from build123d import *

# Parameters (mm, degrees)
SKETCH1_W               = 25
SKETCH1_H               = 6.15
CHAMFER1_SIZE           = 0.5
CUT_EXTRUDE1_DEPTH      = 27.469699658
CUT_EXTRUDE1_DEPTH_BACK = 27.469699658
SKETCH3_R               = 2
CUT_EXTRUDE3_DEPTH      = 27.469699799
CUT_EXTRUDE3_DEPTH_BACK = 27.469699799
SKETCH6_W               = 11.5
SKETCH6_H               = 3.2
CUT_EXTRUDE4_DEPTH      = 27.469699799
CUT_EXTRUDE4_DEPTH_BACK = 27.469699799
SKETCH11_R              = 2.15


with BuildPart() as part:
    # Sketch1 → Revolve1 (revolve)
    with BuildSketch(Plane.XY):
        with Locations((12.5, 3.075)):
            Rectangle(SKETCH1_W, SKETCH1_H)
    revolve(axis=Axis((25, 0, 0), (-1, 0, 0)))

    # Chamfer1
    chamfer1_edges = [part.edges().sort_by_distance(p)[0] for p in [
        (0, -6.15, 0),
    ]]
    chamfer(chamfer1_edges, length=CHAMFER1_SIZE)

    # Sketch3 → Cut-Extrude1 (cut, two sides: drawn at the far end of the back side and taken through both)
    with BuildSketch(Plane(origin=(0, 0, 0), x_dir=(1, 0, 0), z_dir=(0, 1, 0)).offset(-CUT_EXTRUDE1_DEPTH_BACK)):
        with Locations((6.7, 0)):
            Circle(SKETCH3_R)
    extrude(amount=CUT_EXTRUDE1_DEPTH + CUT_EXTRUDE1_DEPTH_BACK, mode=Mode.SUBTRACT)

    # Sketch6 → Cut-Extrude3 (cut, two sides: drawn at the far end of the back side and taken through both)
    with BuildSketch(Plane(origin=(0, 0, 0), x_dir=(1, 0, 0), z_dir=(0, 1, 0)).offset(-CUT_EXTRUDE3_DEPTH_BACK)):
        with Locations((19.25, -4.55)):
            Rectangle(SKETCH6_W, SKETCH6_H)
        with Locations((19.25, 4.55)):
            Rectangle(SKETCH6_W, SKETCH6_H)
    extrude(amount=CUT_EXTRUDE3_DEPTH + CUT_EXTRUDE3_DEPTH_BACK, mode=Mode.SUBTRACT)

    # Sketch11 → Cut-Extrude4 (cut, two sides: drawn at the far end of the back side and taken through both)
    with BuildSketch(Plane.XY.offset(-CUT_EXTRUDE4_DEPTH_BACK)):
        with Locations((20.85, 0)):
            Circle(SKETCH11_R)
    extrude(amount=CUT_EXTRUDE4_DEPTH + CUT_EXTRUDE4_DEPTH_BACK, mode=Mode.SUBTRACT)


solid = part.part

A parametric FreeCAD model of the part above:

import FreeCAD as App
import Part
import Sketcher
from FreeCAD import Vector
Q = App.Units.Quantity


def edges_at(feature, points):
    """Names of the edges that pass closest to the given points."""
    edges = feature.Shape.Edges
    near = lambda p: min(range(len(edges)), key=lambda i: edges[i].distToShape(Part.Vertex(*p))[0])
    return sorted({f"Edge{near(p) + 1}" for p in points})


def add_polygon(sketch, points):
    """Adds a closed chain of lines whose ends are joined by coincident constraints."""
    first, n = sketch.GeometryCount, len(points)
    for a, b in zip(points, points[1:] + points[:1]):
        sketch.addGeometry(Part.LineSegment(App.Vector(*a, 0), App.Vector(*b, 0)), False)
    for i in range(n):
        sketch.addConstraint(Sketcher.Constraint("Coincident", first + i, 2, first + (i + 1) % n, 1))

doc = App.newDocument("Part")
body = doc.addObject("PartDesign::Body", "Body")

# Sketch on XY plane
sketch1 = body.newObject("Sketcher::SketchObject", "Sketch")
sketch1.AttachmentSupport = (doc.getObject("XY_Plane"), [""])
sketch1.MapMode = "FlatFace"
add_polygon(sketch1, [(0, 6.15), (0, 0), (25, 0), (25, 6.15)])  # lines 0-3
sketch1.addConstraint(Sketcher.Constraint("Vertical", 0))
sketch1.addConstraint(Sketcher.Constraint("Horizontal", 1))
sketch1.addConstraint(Sketcher.Constraint("Vertical", 2))
sketch1.addConstraint(Sketcher.Constraint("Horizontal", 3))
sketch1.addConstraint(Sketcher.Constraint("Coincident", 0, 2, -1, 1))
sketch1.addConstraint(Sketcher.Constraint("DistanceX", 1, 1, 1, 2, Q("25 mm")))
sketch1.addConstraint(Sketcher.Constraint("DistanceY", 0, 2, 0, 1, Q("6.15 mm")))
revolution = body.newObject("PartDesign::Revolution", "Revolution")
revolution.Profile = sketch1
revolution.ReferenceAxis = (sketch1, ["H_Axis"])
revolution.Angle = 360
doc.recompute()

chamfer = body.newObject("PartDesign::Chamfer", "Chamfer")
chamfer.Base = (revolution, edges_at(revolution, [(0, -6.15, 0)]))
chamfer.Size = 0.5

# Sketch on XZ plane
sketch2 = body.newObject("Sketcher::SketchObject", "Sketch001")
sketch2.AttachmentSupport = (doc.getObject("XZ_Plane"), [""])
sketch2.MapMode = "FlatFace"
sketch2.addGeometry(Part.Circle(Vector(6.7, 0, 0), Vector(0, 0, 1), 2), False)
sketch2.addConstraint(Sketcher.Constraint("PointOnObject", 0, 3, -1))
sketch2.addConstraint(Sketcher.Constraint("Diameter", 0, Q("4 mm")))
sketch2.addConstraint(Sketcher.Constraint("DistanceX", -1, 1, 0, 3, Q("6.7 mm")))
pocket1 = body.newObject("PartDesign::Pocket", "Pocket")
pocket1.Profile = sketch2
pocket1.Type = "ThroughAll"
pocket1.Midplane = True

# Sketch on XZ plane
sketch3 = body.newObject("Sketcher::SketchObject", "Sketch002")
sketch3.AttachmentSupport = (doc.getObject("XZ_Plane"), [""])
sketch3.MapMode = "FlatFace"
add_polygon(sketch3, [(13.5, 2.95), (13.5, 6.15), (25, 6.15), (25, 2.95)])  # lines 0-3
add_polygon(sketch3, [(13.5, -6.15), (13.5, -2.95), (25, -2.95), (25, -6.15)])  # lines 4-7
sketch3.addConstraint(Sketcher.Constraint("Vertical", 0))
sketch3.addConstraint(Sketcher.Constraint("Horizontal", 1))
sketch3.addConstraint(Sketcher.Constraint("Vertical", 2))
sketch3.addConstraint(Sketcher.Constraint("Horizontal", 3))
sketch3.addConstraint(Sketcher.Constraint("Vertical", 4))
sketch3.addConstraint(Sketcher.Constraint("Horizontal", 5))
sketch3.addConstraint(Sketcher.Constraint("Vertical", 6))
sketch3.addConstraint(Sketcher.Constraint("Horizontal", 7))
sketch3.addConstraint(Sketcher.Constraint("Symmetric", 3, 2, 4, 2, -1))
sketch3.addConstraint(Sketcher.Constraint("Symmetric", 1, 2, 6, 2, -1))
sketch3.addConstraint(Sketcher.Constraint("DistanceX", 1, 1, 1, 2, Q("11.5 mm")))
sketch3.addConstraint(Sketcher.Constraint("DistanceY", 0, 1, 0, 2, Q("3.2 mm")))
sketch3.addConstraint(Sketcher.Constraint("DistanceX", -1, 1, 1, 2, Q("25 mm")))
sketch3.addConstraint(Sketcher.Constraint("DistanceY", 4, 2, 3, 2, Q("5.9 mm")))
pocket2 = body.newObject("PartDesign::Pocket", "Pocket001")
pocket2.Profile = sketch3
pocket2.Type = "ThroughAll"
pocket2.Midplane = True

# Sketch on XY plane
sketch4 = body.newObject("Sketcher::SketchObject", "Sketch003")
sketch4.AttachmentSupport = (doc.getObject("XY_Plane"), [""])
sketch4.MapMode = "FlatFace"
sketch4.addGeometry(Part.Circle(Vector(20.85, 0, 0), Vector(0, 0, 1), 2.15), False)
sketch4.addConstraint(Sketcher.Constraint("PointOnObject", 0, 3, -1))
sketch4.addConstraint(Sketcher.Constraint("Diameter", 0, Q("4.3 mm")))
sketch4.addConstraint(Sketcher.Constraint("DistanceX", -1, 1, 0, 3, Q("20.85 mm")))
pocket3 = body.newObject("PartDesign::Pocket", "Pocket002")
pocket3.Profile = sketch4
pocket3.Type = "ThroughAll"
pocket3.Midplane = True

doc.recompute()
